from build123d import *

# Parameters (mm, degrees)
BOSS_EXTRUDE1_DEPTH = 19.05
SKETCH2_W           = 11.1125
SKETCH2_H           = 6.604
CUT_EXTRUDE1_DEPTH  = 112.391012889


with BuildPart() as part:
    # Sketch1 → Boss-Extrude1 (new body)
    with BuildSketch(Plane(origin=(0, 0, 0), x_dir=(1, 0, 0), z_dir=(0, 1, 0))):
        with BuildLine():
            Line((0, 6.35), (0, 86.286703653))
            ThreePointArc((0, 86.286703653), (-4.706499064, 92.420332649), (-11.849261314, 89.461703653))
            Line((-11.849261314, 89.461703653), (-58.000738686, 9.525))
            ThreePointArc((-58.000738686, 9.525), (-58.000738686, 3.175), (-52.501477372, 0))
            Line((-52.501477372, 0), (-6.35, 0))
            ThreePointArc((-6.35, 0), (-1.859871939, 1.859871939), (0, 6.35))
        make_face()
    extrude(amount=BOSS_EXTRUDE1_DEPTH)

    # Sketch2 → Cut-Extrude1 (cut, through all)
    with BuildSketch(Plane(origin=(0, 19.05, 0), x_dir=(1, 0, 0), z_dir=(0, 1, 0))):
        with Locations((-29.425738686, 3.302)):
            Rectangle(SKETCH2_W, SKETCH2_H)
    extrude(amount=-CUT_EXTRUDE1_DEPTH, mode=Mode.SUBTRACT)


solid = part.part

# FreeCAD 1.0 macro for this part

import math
import FreeCAD as App
import Part
import Sketcher
from FreeCAD import Vector
Q = App.Units.Quantity


def add_polygon(sketch, points):
    """Adds a closed chain of lines whose ends are joined by coincident constraints."""
    first, n = sketch.GeometryCount, len(points)
    for a, b in zip(points, points[1:] + points[:1]):
        sketch.addGeometry(Part.LineSegment(App.Vector(*a, 0), App.Vector(*b, 0)), False)
    for i in range(n):
        sketch.addConstraint(Sketcher.Constraint("Coincident", first + i, 2, first + (i + 1) % n, 1))

doc = App.newDocument("Part")
body = doc.addObject("PartDesign::Body", "Body")

# Sketch on XZ plane
sketch1 = body.newObject("Sketcher::SketchObject", "Sketch")
sketch1.AttachmentSupport = (doc.getObject("XZ_Plane"), [""])
sketch1.MapMode = "FlatFace"
sketch1.addGeometry(Part.LineSegment(Vector(0, -6, 0), Vector(0, -86, 0)), False)
sketch1.addGeometry(Part.ArcOfCircle(Part.Circle(Vector(-6, -86, 0), Vector(0, 0, 1), 6), math.radians(-150), math.radians(0)), False)
sketch1.addGeometry(Part.LineSegment(Vector(-12, -89, 0), Vector(-58, -10, 0)), False)
sketch1.addGeometry(Part.ArcOfCircle(Part.Circle(Vector(-53, -6, 0), Vector(0, 0, 1), 6), math.radians(90), math.radians(210)), False)
sketch1.addGeometry(Part.LineSegment(Vector(-53, 0, 0), Vector(-6, 0, 0)), False)
sketch1.addGeometry(Part.ArcOfCircle(Part.Circle(Vector(-6, -6, 0), Vector(0, 0, 1), 6), math.radians(0), math.radians(90)), False)
sketch1.addConstraint(Sketcher.Constraint("Tangent", 0, 2, 1, 2))
sketch1.addConstraint(Sketcher.Constraint("Tangent", 1, 1, 2, 1))
sketch1.addConstraint(Sketcher.Constraint("Tangent", 2, 2, 3, 2))
sketch1.addConstraint(Sketcher.Constraint("Tangent", 3, 1, 4, 1))
sketch1.addConstraint(Sketcher.Constraint("Tangent", 4, 2, 5, 2))
sketch1.addConstraint(Sketcher.Constraint("Tangent", 5, 1, 0, 1))
sketch1.addConstraint(Sketcher.Constraint("Vertical", 0))
sketch1.addConstraint(Sketcher.Constraint("Horizontal", 4))
sketch1.addConstraint(Sketcher.Constraint("Equal", 1, 3))
sketch1.addConstraint(Sketcher.Constraint("Equal", 3, 5))
sketch1.addConstraint(Sketcher.Constraint("PointOnObject", 0, 2, -2))
sketch1.addConstraint(Sketcher.Constraint("PointOnObject", 3, 1, -1))
sketch1.addConstraint(Sketcher.Constraint("Radius", 1, Q("0.25 in")))
sketch1.addConstraint(Sketcher.Constraint("Angle", 2, Q("120 deg")))
sketch1.addConstraint(Sketcher.Constraint("DistanceX", 4, 1, 4, 2, Q("46.151477 mm")))
pad1 = body.newObject("PartDesign::Pad", "Pad")
pad1.Profile = sketch1
pad1.Length = Q("0.75 in")
pad1.Reversed = True

# Sketch on XZ plane
sketch2 = body.newObject("Sketcher::SketchObject", "Sketch001")
sketch2.AttachmentSupport = (doc.getObject("XZ_Plane"), [""])
sketch2.MapMode = "FlatFace"
sketch2.AttachmentOffset = App.Placement(Vector(0, 0, -0.75 * 25.4), App.Rotation())
add_polygon(sketch2, [(-35, -7), (-35, 0), (-24, 0), (-24, -7)])  # lines 0-3
sketch2.addConstraint(Sketcher.Constraint("Vertical", 0))
sketch2.addConstraint(Sketcher.Constraint("Horizontal", 1))
sketch2.addConstraint(Sketcher.Constraint("Vertical", 2))
sketch2.addConstraint(Sketcher.Constraint("Horizontal", 3))
sketch2.addConstraint(Sketcher.Constraint("PointOnObject", 0, 2, -1))
sketch2.addConstraint(Sketcher.Constraint("DistanceY", 0, 1, 0, 2, Q("0.26 in")))
sketch2.addConstraint(Sketcher.Constraint("DistanceX", 1, 1, 1, 2, Q("0.4375 in")))
sketch2.addConstraint(Sketcher.Constraint("DistanceX", 0, 2, -1, 1, Q("34.981989 mm")))
pocket1 = body.newObject("PartDesign::Pocket", "Pocket")
pocket1.Profile = sketch2
pocket1.Type = "ThroughAll"
pocket1.Reversed = True

doc.recompute()
